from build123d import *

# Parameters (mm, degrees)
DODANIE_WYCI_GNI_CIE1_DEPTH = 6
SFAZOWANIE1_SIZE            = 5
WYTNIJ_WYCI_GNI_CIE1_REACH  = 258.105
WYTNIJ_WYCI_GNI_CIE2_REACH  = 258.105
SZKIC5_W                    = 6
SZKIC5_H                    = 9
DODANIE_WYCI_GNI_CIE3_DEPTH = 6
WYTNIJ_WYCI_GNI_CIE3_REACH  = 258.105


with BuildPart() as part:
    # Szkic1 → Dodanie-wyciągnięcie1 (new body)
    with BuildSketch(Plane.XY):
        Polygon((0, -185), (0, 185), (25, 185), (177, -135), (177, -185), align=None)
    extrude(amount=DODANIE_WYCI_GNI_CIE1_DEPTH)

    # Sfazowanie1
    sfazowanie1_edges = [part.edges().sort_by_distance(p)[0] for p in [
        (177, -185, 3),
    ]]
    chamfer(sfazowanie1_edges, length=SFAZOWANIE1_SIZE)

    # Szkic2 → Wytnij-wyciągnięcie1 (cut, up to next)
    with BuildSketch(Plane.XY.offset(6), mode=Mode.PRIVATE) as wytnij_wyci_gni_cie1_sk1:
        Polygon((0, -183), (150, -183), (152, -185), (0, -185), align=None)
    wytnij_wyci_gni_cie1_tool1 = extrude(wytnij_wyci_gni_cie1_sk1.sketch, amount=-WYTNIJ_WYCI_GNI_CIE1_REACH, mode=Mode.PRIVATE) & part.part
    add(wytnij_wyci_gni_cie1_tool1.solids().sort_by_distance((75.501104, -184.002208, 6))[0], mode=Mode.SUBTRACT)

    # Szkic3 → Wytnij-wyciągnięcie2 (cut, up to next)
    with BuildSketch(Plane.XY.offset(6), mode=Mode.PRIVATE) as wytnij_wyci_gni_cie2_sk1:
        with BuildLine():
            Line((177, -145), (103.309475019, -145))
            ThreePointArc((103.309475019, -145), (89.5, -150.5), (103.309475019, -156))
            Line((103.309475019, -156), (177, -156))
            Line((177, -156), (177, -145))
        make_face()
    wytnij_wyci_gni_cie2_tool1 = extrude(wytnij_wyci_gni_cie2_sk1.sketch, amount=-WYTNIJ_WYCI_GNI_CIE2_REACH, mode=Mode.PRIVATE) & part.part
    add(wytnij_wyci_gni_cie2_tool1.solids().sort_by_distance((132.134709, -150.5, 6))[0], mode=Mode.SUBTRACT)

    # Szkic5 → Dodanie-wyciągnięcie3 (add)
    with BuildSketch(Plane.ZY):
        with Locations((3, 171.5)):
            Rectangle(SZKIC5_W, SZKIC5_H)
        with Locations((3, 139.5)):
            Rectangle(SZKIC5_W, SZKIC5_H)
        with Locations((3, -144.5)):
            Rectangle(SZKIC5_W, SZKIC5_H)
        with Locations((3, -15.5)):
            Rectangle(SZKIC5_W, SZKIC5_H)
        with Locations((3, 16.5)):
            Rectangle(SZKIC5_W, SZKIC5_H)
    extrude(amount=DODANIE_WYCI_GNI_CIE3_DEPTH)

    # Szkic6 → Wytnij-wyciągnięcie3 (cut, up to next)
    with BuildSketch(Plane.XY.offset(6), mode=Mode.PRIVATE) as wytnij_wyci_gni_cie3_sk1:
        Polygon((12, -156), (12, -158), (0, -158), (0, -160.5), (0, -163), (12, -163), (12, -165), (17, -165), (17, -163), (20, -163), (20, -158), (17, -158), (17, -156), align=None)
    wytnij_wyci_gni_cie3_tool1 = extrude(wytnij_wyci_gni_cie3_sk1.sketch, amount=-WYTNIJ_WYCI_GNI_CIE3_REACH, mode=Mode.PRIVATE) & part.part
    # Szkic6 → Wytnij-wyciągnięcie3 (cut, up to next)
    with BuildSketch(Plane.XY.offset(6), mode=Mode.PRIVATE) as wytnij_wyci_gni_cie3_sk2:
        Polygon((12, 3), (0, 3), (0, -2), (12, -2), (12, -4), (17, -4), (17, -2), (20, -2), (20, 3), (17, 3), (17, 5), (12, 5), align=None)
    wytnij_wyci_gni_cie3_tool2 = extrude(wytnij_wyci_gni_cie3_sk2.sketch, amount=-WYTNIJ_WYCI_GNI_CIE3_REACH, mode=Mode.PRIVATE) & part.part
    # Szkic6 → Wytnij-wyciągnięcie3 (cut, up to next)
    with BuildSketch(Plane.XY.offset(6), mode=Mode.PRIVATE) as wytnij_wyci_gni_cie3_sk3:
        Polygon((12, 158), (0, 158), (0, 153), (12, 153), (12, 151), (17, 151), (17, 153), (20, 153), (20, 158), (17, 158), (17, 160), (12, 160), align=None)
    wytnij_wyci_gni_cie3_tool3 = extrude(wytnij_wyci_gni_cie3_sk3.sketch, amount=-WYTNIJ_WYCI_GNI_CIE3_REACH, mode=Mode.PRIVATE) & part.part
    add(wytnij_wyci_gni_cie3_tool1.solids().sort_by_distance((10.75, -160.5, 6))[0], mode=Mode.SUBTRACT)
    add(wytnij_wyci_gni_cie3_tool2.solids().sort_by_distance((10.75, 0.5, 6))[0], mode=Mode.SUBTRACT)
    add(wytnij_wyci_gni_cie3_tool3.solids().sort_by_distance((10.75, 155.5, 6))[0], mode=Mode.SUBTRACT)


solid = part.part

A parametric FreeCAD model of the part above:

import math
import FreeCAD as App
import Part
import Sketcher

V = App.Vector
Q = App.Units.Quantity


def edges_at(feature, points):
    """Names of the edges that pass closest to the given points."""
    edges = feature.Shape.Edges
    near = lambda p: min(range(len(edges)), key=lambda i: edges[i].distToShape(Part.Vertex(*p))[0])
    return sorted({f"Edge{near(p) + 1}" for p in points})


def add_polygon(sketch, points):
    """Adds a closed chain of lines whose ends are joined by coincident constraints."""
    first, n = sketch.GeometryCount, len(points)
    for a, b in zip(points, points[1:] + points[:1]):
        sketch.addGeometry(Part.LineSegment(App.Vector(*a, 0), App.Vector(*b, 0)), False)
    for i in range(n):
        sketch.addConstraint(Sketcher.Constraint("Coincident", first + i, 2, first + (i + 1) % n, 1))

doc = App.newDocument("Part")
body = doc.addObject("PartDesign::Body", "Body")

sketch1 = body.newObject("Sketcher::SketchObject", "Sketch")
sketch1.AttachmentSupport = (doc.getObject("XY_Plane"), [""])
sketch1.MapMode = "FlatFace"
add_polygon(sketch1, [(0, 185), (0, -185), (177, -185), (177, -135), (25, 185)])
sketch1.addConstraint(Sketcher.Constraint("Vertical", 0))
sketch1.addConstraint(Sketcher.Constraint("Horizontal", 1))
sketch1.addConstraint(Sketcher.Constraint("Vertical", 2))
sketch1.addConstraint(Sketcher.Constraint("Horizontal", 4))
sketch1.addConstraint(Sketcher.Constraint("Symmetric", 0, 2, 4, 2, -1, 1))
sketch1.addConstraint(Sketcher.Constraint("DistanceX", 1, 1, 1, 2, Q("177 mm")))
sketch1.addConstraint(Sketcher.Constraint("DistanceX", 4, 2, 4, 1, Q("25 mm")))
sketch1.addConstraint(Sketcher.Constraint("DistanceY", 0, 2, 0, 1, Q("370 mm")))
sketch1.addConstraint(Sketcher.Constraint("DistanceY", 2, 1, 2, 2, Q("50 mm")))
pad1 = body.newObject("PartDesign::Pad", "Pad")
pad1.Profile = sketch1
pad1.Length = 6
doc.recompute()

chamfer = body.newObject("PartDesign::Chamfer", "Chamfer")
chamfer.Base = (pad1, edges_at(pad1, [(177, -185, 3)]))
chamfer.Size = 5

sketch2 = body.newObject("Sketcher::SketchObject", "Sketch001")
sketch2.AttachmentSupport = (doc.getObject("XY_Plane"), [""])
sketch2.MapMode = "FlatFace"
sketch2.AttachmentOffset = App.Placement(V(0, 0, 6), App.Rotation())
add_polygon(sketch2, [(150, -183), (0, -183), (0, -185), (152, -185)])
sketch2.addConstraint(Sketcher.Constraint("Horizontal", 0))
sketch2.addConstraint(Sketcher.Constraint("Vertical", 1))
sketch2.addConstraint(Sketcher.Constraint("Horizontal", 2))
sketch2.addConstraint(Sketcher.Constraint("PointOnObject", 0, 2, -2))
sketch2.addConstraint(Sketcher.Constraint("DistanceX", 0, 2, 0, 1, Q("150 mm")))
sketch2.addConstraint(Sketcher.Constraint("DistanceX", 2, 1, 2, 2, Q("152 mm")))
sketch2.addConstraint(Sketcher.Constraint("DistanceY", 1, 2, 1, 1, Q("2 mm")))
sketch2.addConstraint(Sketcher.Constraint("DistanceY", 0, 2, -1, 1, Q("183 mm")))
pocket1 = body.newObject("PartDesign::Pocket", "Pocket")
pocket1.Profile = sketch2
pocket1.Type = "UpToFirst"

sketch3 = body.newObject("Sketcher::SketchObject", "Sketch002")
sketch3.AttachmentSupport = (doc.getObject("XY_Plane"), [""])
sketch3.MapMode = "FlatFace"
sketch3.AttachmentOffset = App.Placement(V(0, 0, 6), App.Rotation())
sketch3.addGeometry(Part.LineSegment(V(177, -145, 0), V(103, -145, 0)), False)
sketch3.addGeometry(Part.ArcOfCircle(Part.Circle(V(98, -150, 0), V(0, 0, 1), 8), math.radians(43), math.radians(317)), False)
sketch3.addGeometry(Part.LineSegment(V(103, -156, 0), V(177, -156, 0)), False)
sketch3.addGeometry(Part.LineSegment(V(177, -156, 0), V(177, -145, 0)), False)
sketch3.addConstraint(Sketcher.Constraint("Coincident", 0, 2, 1, 1))
sketch3.addConstraint(Sketcher.Constraint("Coincident", 1, 2, 2, 1))
sketch3.addConstraint(Sketcher.Constraint("Coincident", 2, 2, 3, 1))
sketch3.addConstraint(Sketcher.Constraint("Coincident", 3, 2, 0, 1))
sketch3.addConstraint(Sketcher.Constraint("Horizontal", 0))
sketch3.addConstraint(Sketcher.Constraint("Horizontal", 2))
sketch3.addConstraint(Sketcher.Constraint("Vertical", 3))
sketch3.addConstraint(Sketcher.Constraint("Vertical", 0, 2, 1, 2))
sketch3.addConstraint(Sketcher.Constraint("Radius", 1, Q("8 mm")))
sketch3.addConstraint(Sketcher.Constraint("DistanceY", 3, 1, 3, 2, Q("11 mm")))
sketch3.addConstraint(Sketcher.Constraint("DistanceY", 0, 2, -1, 1, Q("145 mm")))
sketch3.addConstraint(Sketcher.Constraint("DistanceX", -1, 1, 2, 2, Q("177 mm")))
sketch3.addConstraint(Sketcher.Constraint("DistanceX", -1, 1, 1, 3, Q("97.5 mm")))
pocket2 = body.newObject("PartDesign::Pocket", "Pocket001")
pocket2.Profile = sketch3
pocket2.Type = "UpToFirst"

sketch4 = body.newObject("Sketcher::SketchObject", "Sketch003")
sketch4.AttachmentSupport = (doc.getObject("YZ_Plane"), [""])
sketch4.MapMode = "FlatFace"
add_polygon(sketch4, [(176, 0), (167, 0), (167, 6), (176, 6)])
add_polygon(sketch4, [(144, 0), (135, 0), (135, 6), (144, 6)])
add_polygon(sketch4, [(-140, 0), (-149, 0), (-149, 6), (-140, 6)])
add_polygon(sketch4, [(-11, 0), (-20, 0), (-20, 6), (-11, 6)])
add_polygon(sketch4, [(21, 0), (12, 0), (12, 6), (21, 6)])
sketch4.addConstraint(Sketcher.Constraint("Horizontal", 0))
sketch4.addConstraint(Sketcher.Constraint("Vertical", 1))
sketch4.addConstraint(Sketcher.Constraint("Horizontal", 2))
sketch4.addConstraint(Sketcher.Constraint("Vertical", 3))
sketch4.addConstraint(Sketcher.Constraint("Horizontal", 4))
sketch4.addConstraint(Sketcher.Constraint("Vertical", 5))
sketch4.addConstraint(Sketcher.Constraint("Horizontal", 6))
sketch4.addConstraint(Sketcher.Constraint("Vertical", 7))
sketch4.addConstraint(Sketcher.Constraint("Horizontal", 8))
sketch4.addConstraint(Sketcher.Constraint("Vertical", 9))
sketch4.addConstraint(Sketcher.Constraint("Horizontal", 10))
sketch4.addConstraint(Sketcher.Constraint("Vertical", 11))
sketch4.addConstraint(Sketcher.Constraint("Horizontal", 12))
sketch4.addConstraint(Sketcher.Constraint("Vertical", 13))
sketch4.addConstraint(Sketcher.Constraint("Horizontal", 14))
sketch4.addConstraint(Sketcher.Constraint("Vertical", 15))
sketch4.addConstraint(Sketcher.Constraint("Horizontal", 16))
sketch4.addConstraint(Sketcher.Constraint("Vertical", 17))
sketch4.addConstraint(Sketcher.Constraint("Horizontal", 18))
sketch4.addConstraint(Sketcher.Constraint("Vertical", 19))
sketch4.addConstraint(Sketcher.Constraint("PointOnObject", 0, 2, -1))
sketch4.addConstraint(Sketcher.Constraint("PointOnObject", 4, 2, -1))
sketch4.addConstraint(Sketcher.Constraint("PointOnObject", 8, 2, -1))
sketch4.addConstraint(Sketcher.Constraint("PointOnObject", 12, 2, -1))
sketch4.addConstraint(Sketcher.Constraint("PointOnObject", 16, 2, -1))
sketch4.addConstraint(Sketcher.Constraint("Horizontal", 2, 2, 5, 2))
sketch4.addConstraint(Sketcher.Constraint("Horizontal", 6, 2, 9, 2))
sketch4.addConstraint(Sketcher.Constraint("Horizontal", 10, 2, 13, 2))
sketch4.addConstraint(Sketcher.Constraint("Horizontal", 14, 2, 17, 2))
sketch4.addConstraint(Sketcher.Constraint("Equal", 2, 4))
sketch4.addConstraint(Sketcher.Constraint("Equal", 6, 8))
sketch4.addConstraint(Sketcher.Constraint("Equal", 10, 12))
sketch4.addConstraint(Sketcher.Constraint("Equal", 14, 16))
sketch4.addConstraint(Sketcher.Constraint("DistanceX", 0, 2, 0, 1, Q("9 mm")))
sketch4.addConstraint(Sketcher.Constraint("DistanceY", 1, 1, 1, 2, Q("6 mm")))
sketch4.addConstraint(Sketcher.Constraint("DistanceX", -1, 1, 0, 2, Q("167 mm")))
sketch4.addConstraint(Sketcher.Constraint("DistanceX", -1, 1, 4, 2, Q("135 mm")))
sketch4.addConstraint(Sketcher.Constraint("DistanceX", 8, 2, -1, 1, Q("149 mm")))
sketch4.addConstraint(Sketcher.Constraint("DistanceX", 12, 2, -1, 1, Q("20 mm")))
sketch4.addConstraint(Sketcher.Constraint("DistanceX", -1, 1, 16, 2, Q("12 mm")))
pad2 = body.newObject("PartDesign::Pad", "Pad001")
pad2.Profile = sketch4
pad2.Length = 6
pad2.Reversed = True

sketch5 = body.newObject("Sketcher::SketchObject", "Sketch004")
sketch5.AttachmentSupport = (doc.getObject("XY_Plane"), [""])
sketch5.MapMode = "FlatFace"
sketch5.AttachmentOffset = App.Placement(V(0, 0, 6), App.Rotation())
add_polygon(sketch5, [(12, -156), (12, -158), (0, -158), (0, -163), (12, -163), (12, -165), (17, -165), (17, -163), (20, -163), (20, -158), (17, -158), (17, -156)])
sketch5.addConstraint(Sketcher.Constraint("Vertical", 0))
sketch5.addConstraint(Sketcher.Constraint("Horizontal", 1))
sketch5.addConstraint(Sketcher.Constraint("Vertical", 2))
sketch5.addConstraint(Sketcher.Constraint("Horizontal", 3))
sketch5.addConstraint(Sketcher.Constraint("Vertical", 4))
sketch5.addConstraint(Sketcher.Constraint("Horizontal", 5))
sketch5.addConstraint(Sketcher.Constraint("Vertical", 6))
sketch5.addConstraint(Sketcher.Constraint("Horizontal", 7))
sketch5.addConstraint(Sketcher.Constraint("Vertical", 8))
sketch5.addConstraint(Sketcher.Constraint("Horizontal", 9))
sketch5.addConstraint(Sketcher.Constraint("Vertical", 10))
sketch5.addConstraint(Sketcher.Constraint("Horizontal", 11))
sketch5.addConstraint(Sketcher.Constraint("PointOnObject", 1, 2, -2))
sketch5.addConstraint(Sketcher.Constraint("Horizontal", 3, 2, 6, 2))
sketch5.addConstraint(Sketcher.Constraint("Horizontal", 1, 2, 8, 2))
sketch5.addConstraint(Sketcher.Constraint("Vertical", 0, 2, 3, 2))
sketch5.addConstraint(Sketcher.Constraint("Vertical", 6, 2, 9, 2))
sketch5.addConstraint(Sketcher.Constraint("Equal", 11, 2))
sketch5.addConstraint(Sketcher.Constraint("Equal", 0, 4))
sketch5.addConstraint(Sketcher.Constraint("DistanceX", 1, 2, 1, 1, Q("12 mm")))
sketch5.addConstraint(Sketcher.Constraint("DistanceX", 5, 1, 5, 2, Q("5 mm")))
sketch5.addConstraint(Sketcher.Constraint("DistanceX", 7, 1, 7, 2, Q("3 mm")))
sketch5.addConstraint(Sketcher.Constraint("DistanceY", 0, 2, 0, 1, Q("2 mm")))
sketch5.addConstraint(Sketcher.Constraint("DistanceY", 0, 2, -1, 1, Q("158 mm")))
pocket3 = body.newObject("PartDesign::Pocket", "Pocket002")
pocket3.Profile = sketch5
pocket3.Type = "UpToFirst"

sketch6 = body.newObject("Sketcher::SketchObject", "Sketch005")
sketch6.AttachmentSupport = (doc.getObject("XY_Plane"), [""])
sketch6.MapMode = "FlatFace"
sketch6.AttachmentOffset = App.Placement(V(0, 0, 6), App.Rotation())
add_polygon(sketch6, [(12, 3), (0, 3), (0, -2), (12, -2), (12, -4), (17, -4), (17, -2), (20, -2), (20, 3), (17, 3), (17, 5), (12, 5)])
sketch6.addConstraint(Sketcher.Constraint("Horizontal", 0))
sketch6.addConstraint(Sketcher.Constraint("Vertical", 1))
sketch6.addConstraint(Sketcher.Constraint("Horizontal", 2))
sketch6.addConstraint(Sketcher.Constraint("Vertical", 3))
sketch6.addConstraint(Sketcher.Constraint("Horizontal", 4))
sketch6.addConstraint(Sketcher.Constraint("Vertical", 5))
sketch6.addConstraint(Sketcher.Constraint("Horizontal", 6))
sketch6.addConstraint(Sketcher.Constraint("Vertical", 7))
sketch6.addConstraint(Sketcher.Constraint("Horizontal", 8))
sketch6.addConstraint(Sketcher.Constraint("Vertical", 9))
sketch6.addConstraint(Sketcher.Constraint("Horizontal", 10))
sketch6.addConstraint(Sketcher.Constraint("Vertical", 11))
sketch6.addConstraint(Sketcher.Constraint("PointOnObject", 0, 2, -2))
sketch6.addConstraint(Sketcher.Constraint("Horizontal", 2, 2, 5, 2))
sketch6.addConstraint(Sketcher.Constraint("Horizontal", 0, 2, 7, 2))
sketch6.addConstraint(Sketcher.Constraint("Vertical", 5, 2, 8, 2))
sketch6.addConstraint(Sketcher.Constraint("Vertical", 3, 2, 10, 2))
sketch6.addConstraint(Sketcher.Constraint("Equal", 10, 1))
sketch6.addConstraint(Sketcher.Constraint("Equal", 5, 9))
sketch6.addConstraint(Sketcher.Constraint("DistanceX", 0, 2, 0, 1, Q("12 mm")))
sketch6.addConstraint(Sketcher.Constraint("DistanceX", 4, 1, 4, 2, Q("5 mm")))
sketch6.addConstraint(Sketcher.Constraint("DistanceX", 6, 1, 6, 2, Q("3 mm")))
sketch6.addConstraint(Sketcher.Constraint("DistanceY", 3, 2, 3, 1, Q("2 mm")))
sketch6.addConstraint(Sketcher.Constraint("DistanceY", -1, 1, 0, 2, Q("3 mm")))
pocket4 = body.newObject("PartDesign::Pocket", "Pocket003")
pocket4.Profile = sketch6
pocket4.Type = "UpToFirst"

sketch7 = body.newObject("Sketcher::SketchObject", "Sketch006")
sketch7.AttachmentSupport = (doc.getObject("XY_Plane"), [""])
sketch7.MapMode = "FlatFace"
sketch7.AttachmentOffset = App.Placement(V(0, 0, 6), App.Rotation())
add_polygon(sketch7, [(12, 158), (0, 158), (0, 153), (12, 153), (12, 151), (17, 151), (17, 153), (20, 153), (20, 158), (17, 158), (17, 160), (12, 160)])
sketch7.addConstraint(Sketcher.Constraint("Horizontal", 0))
sketch7.addConstraint(Sketcher.Constraint("Vertical", 1))
sketch7.addConstraint(Sketcher.Constraint("Horizontal", 2))
sketch7.addConstraint(Sketcher.Constraint("Vertical", 3))
sketch7.addConstraint(Sketcher.Constraint("Horizontal", 4))
sketch7.addConstraint(Sketcher.Constraint("Vertical", 5))
sketch7.addConstraint(Sketcher.Constraint("Horizontal", 6))
sketch7.addConstraint(Sketcher.Constraint("Vertical", 7))
sketch7.addConstraint(Sketcher.Constraint("Horizontal", 8))
sketch7.addConstraint(Sketcher.Constraint("Vertical", 9))
sketch7.addConstraint(Sketcher.Constraint("Horizontal", 10))
sketch7.addConstraint(Sketcher.Constraint("Vertical", 11))
sketch7.addConstraint(Sketcher.Constraint("PointOnObject", 0, 2, -2))
sketch7.addConstraint(Sketcher.Constraint("Horizontal", 2, 2, 5, 2))
sketch7.addConstraint(Sketcher.Constraint("Horizontal", 0, 2, 7, 2))
sketch7.addConstraint(Sketcher.Constraint("Vertical", 5, 2, 8, 2))
sketch7.addConstraint(Sketcher.Constraint("Vertical", 3, 2, 10, 2))
sketch7.addConstraint(Sketcher.Constraint("Equal", 10, 1))
sketch7.addConstraint(Sketcher.Constraint("Equal", 5, 9))
sketch7.addConstraint(Sketcher.Constraint("DistanceX", 0, 2, 0, 1, Q("12 mm")))
sketch7.addConstraint(Sketcher.Constraint("DistanceX", 4, 1, 4, 2, Q("5 mm")))
sketch7.addConstraint(Sketcher.Constraint("DistanceX", 6, 1, 6, 2, Q("3 mm")))
sketch7.addConstraint(Sketcher.Constraint("DistanceY", 3, 2, 3, 1, Q("2 mm")))
sketch7.addConstraint(Sketcher.Constraint("DistanceY", -1, 1, 0, 2, Q("158 mm")))
pocket5 = body.newObject("PartDesign::Pocket", "Pocket004")
pocket5.Profile = sketch7
pocket5.Type = "UpToFirst"

doc.recompute()
